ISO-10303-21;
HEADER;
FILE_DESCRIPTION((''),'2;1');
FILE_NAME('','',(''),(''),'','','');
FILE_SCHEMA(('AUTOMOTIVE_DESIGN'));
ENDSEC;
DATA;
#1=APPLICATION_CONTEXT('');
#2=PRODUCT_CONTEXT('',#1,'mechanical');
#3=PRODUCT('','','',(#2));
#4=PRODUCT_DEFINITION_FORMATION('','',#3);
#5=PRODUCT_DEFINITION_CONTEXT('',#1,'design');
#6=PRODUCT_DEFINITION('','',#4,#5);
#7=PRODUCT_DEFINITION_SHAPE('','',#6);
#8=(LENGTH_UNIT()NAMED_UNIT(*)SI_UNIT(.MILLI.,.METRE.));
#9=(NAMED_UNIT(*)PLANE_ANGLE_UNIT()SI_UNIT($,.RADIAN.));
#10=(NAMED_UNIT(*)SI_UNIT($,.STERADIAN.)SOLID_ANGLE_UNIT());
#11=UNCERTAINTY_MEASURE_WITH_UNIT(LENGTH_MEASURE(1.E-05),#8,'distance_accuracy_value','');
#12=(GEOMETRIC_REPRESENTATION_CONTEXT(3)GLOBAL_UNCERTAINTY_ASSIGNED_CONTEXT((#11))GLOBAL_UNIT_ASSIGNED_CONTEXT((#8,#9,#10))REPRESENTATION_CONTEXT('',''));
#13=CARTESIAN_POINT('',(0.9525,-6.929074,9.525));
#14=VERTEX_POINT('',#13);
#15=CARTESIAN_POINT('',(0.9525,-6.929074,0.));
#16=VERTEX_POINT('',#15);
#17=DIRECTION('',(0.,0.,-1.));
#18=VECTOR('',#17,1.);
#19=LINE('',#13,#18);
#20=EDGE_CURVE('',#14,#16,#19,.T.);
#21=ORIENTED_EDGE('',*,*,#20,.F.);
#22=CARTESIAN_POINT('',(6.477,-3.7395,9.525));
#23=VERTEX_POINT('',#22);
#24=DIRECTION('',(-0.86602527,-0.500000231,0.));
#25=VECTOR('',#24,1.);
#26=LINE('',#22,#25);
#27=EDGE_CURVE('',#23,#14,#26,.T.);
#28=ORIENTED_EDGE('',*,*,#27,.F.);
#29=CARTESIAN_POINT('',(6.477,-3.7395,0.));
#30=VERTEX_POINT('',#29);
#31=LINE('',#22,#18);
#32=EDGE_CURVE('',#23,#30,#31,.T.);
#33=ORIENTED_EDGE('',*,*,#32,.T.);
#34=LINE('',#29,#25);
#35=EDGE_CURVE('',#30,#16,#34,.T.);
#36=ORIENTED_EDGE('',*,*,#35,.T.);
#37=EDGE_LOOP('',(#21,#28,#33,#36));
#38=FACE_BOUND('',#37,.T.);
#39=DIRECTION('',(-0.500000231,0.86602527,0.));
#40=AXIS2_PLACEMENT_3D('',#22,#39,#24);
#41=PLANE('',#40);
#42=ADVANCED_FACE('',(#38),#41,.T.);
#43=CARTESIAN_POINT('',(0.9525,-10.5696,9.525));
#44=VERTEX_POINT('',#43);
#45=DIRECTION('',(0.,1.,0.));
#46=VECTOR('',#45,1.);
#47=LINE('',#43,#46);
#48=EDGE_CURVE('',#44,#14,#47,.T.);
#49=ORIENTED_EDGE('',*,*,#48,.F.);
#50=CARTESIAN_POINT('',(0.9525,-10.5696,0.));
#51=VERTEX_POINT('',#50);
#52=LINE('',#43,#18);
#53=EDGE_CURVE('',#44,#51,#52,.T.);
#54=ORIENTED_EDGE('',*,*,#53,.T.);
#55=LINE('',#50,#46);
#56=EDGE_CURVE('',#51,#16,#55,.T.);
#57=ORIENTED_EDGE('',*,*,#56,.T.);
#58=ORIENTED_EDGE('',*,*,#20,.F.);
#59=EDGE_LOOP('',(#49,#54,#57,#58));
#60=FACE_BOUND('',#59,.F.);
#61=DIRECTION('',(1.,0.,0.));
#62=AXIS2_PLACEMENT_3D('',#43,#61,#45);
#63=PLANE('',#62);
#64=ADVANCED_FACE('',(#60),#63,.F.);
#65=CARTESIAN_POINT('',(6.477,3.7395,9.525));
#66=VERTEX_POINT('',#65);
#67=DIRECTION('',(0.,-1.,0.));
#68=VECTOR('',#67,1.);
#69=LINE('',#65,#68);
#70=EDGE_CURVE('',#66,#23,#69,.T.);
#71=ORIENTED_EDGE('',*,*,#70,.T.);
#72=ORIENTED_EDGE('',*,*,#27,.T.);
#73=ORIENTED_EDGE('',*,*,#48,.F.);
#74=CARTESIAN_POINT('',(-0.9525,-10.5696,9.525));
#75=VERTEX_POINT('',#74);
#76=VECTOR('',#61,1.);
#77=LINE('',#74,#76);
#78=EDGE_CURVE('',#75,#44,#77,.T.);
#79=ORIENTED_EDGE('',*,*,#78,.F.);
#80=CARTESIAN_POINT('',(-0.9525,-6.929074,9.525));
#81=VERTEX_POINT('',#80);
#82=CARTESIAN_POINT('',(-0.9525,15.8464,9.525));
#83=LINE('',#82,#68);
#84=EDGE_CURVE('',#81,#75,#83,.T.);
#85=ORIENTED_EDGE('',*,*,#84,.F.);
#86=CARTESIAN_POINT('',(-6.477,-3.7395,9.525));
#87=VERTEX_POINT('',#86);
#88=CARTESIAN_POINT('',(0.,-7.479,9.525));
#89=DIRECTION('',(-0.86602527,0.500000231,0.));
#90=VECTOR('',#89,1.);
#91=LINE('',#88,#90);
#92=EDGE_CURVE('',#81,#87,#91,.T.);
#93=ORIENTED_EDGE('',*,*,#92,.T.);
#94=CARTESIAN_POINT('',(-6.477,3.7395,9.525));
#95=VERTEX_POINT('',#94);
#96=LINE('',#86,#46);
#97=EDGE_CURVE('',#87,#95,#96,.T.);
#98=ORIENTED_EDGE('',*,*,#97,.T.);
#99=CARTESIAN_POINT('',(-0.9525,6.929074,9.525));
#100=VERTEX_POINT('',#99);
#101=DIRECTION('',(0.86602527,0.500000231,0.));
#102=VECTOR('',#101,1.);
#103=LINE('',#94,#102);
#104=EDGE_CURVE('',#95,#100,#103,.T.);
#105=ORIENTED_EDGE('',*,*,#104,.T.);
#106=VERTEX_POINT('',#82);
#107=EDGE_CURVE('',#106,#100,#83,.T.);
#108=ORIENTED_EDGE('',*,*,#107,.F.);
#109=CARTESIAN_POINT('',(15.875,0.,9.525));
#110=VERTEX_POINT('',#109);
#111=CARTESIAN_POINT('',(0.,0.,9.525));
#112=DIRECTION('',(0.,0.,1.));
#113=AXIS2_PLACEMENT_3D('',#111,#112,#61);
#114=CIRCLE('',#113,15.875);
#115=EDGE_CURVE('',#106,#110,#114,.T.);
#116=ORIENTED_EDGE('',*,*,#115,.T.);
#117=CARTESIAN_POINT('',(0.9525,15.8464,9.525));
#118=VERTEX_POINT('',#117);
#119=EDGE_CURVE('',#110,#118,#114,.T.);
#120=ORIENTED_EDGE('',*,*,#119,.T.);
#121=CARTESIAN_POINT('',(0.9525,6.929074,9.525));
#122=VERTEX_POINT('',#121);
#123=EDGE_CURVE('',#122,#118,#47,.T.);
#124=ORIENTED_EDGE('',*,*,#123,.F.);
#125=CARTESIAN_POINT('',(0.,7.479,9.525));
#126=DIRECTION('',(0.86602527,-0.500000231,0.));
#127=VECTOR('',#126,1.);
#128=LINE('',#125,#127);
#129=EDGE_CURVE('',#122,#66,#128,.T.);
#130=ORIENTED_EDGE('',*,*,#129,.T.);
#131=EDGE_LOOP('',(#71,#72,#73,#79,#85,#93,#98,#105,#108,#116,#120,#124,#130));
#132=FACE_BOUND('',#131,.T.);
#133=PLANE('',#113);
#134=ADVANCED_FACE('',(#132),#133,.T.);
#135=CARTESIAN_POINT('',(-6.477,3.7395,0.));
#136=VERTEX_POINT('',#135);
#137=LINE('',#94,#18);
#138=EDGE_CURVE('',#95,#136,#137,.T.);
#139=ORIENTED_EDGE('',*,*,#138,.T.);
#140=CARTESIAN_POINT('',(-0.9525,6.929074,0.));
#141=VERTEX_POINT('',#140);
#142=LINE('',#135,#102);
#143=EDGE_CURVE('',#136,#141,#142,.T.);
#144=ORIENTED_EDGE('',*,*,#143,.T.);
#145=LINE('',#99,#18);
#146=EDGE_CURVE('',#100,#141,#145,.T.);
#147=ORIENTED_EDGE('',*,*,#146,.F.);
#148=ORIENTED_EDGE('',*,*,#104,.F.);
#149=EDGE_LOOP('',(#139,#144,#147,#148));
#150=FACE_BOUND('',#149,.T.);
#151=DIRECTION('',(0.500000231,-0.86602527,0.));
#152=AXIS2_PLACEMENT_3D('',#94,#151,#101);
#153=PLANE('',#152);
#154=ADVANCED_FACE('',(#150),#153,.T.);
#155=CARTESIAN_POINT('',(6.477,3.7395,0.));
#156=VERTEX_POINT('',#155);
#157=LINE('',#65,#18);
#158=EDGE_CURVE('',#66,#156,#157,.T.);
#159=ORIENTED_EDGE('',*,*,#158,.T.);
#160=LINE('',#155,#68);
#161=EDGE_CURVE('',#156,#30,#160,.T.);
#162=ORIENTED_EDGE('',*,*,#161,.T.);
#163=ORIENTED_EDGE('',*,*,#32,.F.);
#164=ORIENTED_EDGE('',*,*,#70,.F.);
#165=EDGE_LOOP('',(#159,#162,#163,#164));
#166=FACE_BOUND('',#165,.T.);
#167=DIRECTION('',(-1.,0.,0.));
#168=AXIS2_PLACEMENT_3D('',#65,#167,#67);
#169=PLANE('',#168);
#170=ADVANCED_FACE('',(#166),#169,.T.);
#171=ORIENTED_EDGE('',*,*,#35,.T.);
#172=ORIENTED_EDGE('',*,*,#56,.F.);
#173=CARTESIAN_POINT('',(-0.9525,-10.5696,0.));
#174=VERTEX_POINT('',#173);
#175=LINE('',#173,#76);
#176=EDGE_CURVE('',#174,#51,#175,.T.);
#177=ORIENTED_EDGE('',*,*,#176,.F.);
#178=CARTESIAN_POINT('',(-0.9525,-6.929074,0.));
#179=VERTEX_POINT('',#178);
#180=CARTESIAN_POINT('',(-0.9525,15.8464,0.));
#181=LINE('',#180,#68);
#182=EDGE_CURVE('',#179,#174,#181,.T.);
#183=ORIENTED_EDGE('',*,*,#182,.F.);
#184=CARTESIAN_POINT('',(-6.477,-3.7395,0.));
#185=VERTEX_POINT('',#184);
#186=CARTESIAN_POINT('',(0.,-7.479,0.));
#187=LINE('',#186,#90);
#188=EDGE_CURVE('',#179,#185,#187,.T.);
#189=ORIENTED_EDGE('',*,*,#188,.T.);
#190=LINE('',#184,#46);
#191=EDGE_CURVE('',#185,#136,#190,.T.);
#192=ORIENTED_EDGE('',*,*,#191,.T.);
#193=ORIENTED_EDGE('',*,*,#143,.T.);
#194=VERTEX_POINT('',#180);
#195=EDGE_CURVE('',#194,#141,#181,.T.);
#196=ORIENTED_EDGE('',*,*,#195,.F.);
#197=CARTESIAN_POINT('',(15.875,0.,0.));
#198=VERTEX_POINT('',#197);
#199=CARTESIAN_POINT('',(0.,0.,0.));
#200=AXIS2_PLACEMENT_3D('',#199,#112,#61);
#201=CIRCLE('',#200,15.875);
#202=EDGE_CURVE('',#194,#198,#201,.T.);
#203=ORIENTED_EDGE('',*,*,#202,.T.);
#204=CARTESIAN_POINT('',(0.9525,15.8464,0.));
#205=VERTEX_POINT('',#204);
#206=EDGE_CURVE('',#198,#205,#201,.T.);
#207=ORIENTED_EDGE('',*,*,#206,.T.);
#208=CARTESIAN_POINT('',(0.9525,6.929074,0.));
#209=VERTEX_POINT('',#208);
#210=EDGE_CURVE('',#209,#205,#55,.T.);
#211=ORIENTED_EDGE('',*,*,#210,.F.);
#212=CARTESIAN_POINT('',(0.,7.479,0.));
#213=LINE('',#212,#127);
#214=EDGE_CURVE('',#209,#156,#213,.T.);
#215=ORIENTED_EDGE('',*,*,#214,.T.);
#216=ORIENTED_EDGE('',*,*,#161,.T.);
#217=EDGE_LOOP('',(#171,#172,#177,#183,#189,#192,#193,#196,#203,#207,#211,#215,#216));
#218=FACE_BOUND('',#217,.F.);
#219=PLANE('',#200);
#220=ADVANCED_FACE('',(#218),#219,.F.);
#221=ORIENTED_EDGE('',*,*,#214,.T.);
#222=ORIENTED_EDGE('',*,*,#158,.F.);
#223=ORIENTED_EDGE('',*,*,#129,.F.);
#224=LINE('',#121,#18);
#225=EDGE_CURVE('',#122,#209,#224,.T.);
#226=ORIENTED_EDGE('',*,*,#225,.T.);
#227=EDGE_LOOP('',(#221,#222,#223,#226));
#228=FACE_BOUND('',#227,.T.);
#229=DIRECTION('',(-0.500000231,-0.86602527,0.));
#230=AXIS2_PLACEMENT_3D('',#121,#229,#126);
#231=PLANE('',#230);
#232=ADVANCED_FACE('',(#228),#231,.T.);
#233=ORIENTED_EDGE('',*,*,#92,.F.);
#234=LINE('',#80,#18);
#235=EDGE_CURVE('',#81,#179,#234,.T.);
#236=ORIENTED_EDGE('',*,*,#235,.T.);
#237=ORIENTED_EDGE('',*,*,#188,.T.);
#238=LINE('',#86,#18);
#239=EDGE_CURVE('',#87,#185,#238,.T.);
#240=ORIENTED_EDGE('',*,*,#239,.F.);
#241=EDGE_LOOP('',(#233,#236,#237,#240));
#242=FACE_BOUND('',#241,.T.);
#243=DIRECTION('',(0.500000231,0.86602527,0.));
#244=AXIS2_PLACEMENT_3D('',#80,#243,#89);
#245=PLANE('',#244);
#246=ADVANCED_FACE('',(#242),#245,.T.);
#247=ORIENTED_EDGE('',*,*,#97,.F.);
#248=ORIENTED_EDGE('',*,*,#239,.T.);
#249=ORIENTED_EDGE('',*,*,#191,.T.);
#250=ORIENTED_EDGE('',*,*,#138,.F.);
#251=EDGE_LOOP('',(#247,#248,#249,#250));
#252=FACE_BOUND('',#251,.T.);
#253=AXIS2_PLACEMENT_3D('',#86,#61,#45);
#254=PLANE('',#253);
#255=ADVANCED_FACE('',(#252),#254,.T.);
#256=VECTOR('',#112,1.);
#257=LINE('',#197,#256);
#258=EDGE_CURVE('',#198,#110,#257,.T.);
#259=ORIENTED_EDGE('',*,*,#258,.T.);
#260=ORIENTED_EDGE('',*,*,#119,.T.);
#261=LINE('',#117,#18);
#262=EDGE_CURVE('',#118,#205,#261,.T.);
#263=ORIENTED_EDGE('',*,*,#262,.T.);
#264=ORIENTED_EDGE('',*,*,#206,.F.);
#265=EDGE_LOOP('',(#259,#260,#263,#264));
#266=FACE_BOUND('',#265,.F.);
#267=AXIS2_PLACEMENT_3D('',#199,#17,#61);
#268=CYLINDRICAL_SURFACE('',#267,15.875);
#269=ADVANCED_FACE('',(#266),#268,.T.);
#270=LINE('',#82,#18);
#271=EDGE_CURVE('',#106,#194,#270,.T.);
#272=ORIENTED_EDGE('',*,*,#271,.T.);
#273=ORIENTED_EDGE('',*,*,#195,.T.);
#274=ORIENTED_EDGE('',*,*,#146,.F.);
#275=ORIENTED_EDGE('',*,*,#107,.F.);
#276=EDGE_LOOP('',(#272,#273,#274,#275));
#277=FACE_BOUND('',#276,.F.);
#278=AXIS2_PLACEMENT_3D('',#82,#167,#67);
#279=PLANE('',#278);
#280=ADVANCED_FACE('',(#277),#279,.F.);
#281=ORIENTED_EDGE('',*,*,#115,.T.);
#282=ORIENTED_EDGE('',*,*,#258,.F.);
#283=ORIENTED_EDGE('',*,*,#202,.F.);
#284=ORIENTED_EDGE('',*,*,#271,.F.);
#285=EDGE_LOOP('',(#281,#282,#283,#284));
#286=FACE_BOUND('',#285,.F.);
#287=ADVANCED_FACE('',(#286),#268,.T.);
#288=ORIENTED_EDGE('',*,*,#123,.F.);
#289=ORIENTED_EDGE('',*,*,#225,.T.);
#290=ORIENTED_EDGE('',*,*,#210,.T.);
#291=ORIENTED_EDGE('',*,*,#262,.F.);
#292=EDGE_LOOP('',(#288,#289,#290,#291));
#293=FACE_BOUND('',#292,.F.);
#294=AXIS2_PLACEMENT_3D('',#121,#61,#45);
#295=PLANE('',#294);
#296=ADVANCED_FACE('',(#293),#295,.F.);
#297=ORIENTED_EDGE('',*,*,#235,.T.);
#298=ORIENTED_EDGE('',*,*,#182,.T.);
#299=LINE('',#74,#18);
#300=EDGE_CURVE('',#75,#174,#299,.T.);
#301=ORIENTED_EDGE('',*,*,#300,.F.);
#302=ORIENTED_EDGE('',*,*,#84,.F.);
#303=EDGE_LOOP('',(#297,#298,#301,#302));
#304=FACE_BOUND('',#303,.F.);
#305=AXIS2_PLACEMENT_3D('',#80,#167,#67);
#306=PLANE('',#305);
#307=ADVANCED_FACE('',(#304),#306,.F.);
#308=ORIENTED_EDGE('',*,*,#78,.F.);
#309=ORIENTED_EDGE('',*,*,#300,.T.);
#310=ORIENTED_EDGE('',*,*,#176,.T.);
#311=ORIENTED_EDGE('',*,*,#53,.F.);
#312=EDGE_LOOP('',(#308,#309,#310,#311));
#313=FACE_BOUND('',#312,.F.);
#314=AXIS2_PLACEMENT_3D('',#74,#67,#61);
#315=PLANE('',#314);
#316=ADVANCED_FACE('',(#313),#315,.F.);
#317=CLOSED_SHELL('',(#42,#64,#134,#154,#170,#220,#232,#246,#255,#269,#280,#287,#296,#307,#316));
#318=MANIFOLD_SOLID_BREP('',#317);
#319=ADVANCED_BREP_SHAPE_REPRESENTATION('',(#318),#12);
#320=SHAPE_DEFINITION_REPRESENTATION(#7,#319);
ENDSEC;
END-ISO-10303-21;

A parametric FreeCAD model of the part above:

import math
import FreeCAD as App
import Part
import Sketcher
Q = App.Units.Quantity

doc = App.newDocument("Part")
body = doc.addObject("PartDesign::Body", "Body")

# Sketch on XY plane
sketch1 = body.newObject("Sketcher::SketchObject", "Sketch")
sketch1.AttachmentSupport = (doc.getObject("XY_Plane"), [""])
sketch1.MapMode = "FlatFace"
sketch1.addGeometry(Part.Circle(App.Vector(0, 0, 0), App.Vector(0, 0, 1), 15.875), False)
sketch1.addConstraint([
    Sketcher.Constraint("Coincident", 0, 3, -1, 1),
    Sketcher.Constraint("Diameter", 0, Q("1.25 in")),
])
pad1 = body.newObject("PartDesign::Pad", "Pad")
pad1.Profile = sketch1
pad1.Length = Q("0.375 in")

# Sketch on XY plane
sketch2 = body.newObject("Sketcher::SketchObject", "Sketch001")
sketch2.AttachmentSupport = (doc.getObject("XY_Plane"), [""])
sketch2.MapMode = "FlatFace"
sketch2.AttachmentOffset = App.Placement(App.Vector(0, 0, 0.375 * 25.4), App.Rotation())
sketch2.addGeometry([
    Part.LineSegment(App.Vector(-6.477, 3.7395, 0), App.Vector(-6.477, -3.7395, 0)),  # 0
    Part.LineSegment(App.Vector(-6.477, -3.7395, 0), App.Vector(-0.9525, -6.929074, 0)),  # 1
    Part.LineSegment(App.Vector(-0.9525, -6.929074, 0), App.Vector(-0.9525, -10.5696, 0)),  # 2
    Part.LineSegment(App.Vector(-0.9525, -10.5696, 0), App.Vector(0.9525, -10.5696, 0)),  # 3
    Part.LineSegment(App.Vector(0.9525, -10.5696, 0), App.Vector(0.9525, -6.929074, 0)),  # 4
    Part.LineSegment(App.Vector(0.9525, -6.929074, 0), App.Vector(6.477, -3.7395, 0)),  # 5
    Part.LineSegment(App.Vector(6.477, -3.7395, 0), App.Vector(6.477, 3.7395, 0)),  # 6
    Part.LineSegment(App.Vector(6.477, 3.7395, 0), App.Vector(0.9525, 6.929074, 0)),  # 7
    Part.LineSegment(App.Vector(0.9525, 6.929074, 0), App.Vector(0.9525, 15.8464, 0)),  # 8
    Part.ArcOfCircle(Part.Circle(App.Vector(0, 0, 0), App.Vector(0, 0, 1), 15.875), math.radians(86.560187), math.radians(93.439813)),  # 9
    Part.LineSegment(App.Vector(-0.9525, 15.8464, 0), App.Vector(-0.9525, 6.929074, 0)),  # 10
    Part.LineSegment(App.Vector(-0.9525, 6.929074, 0), App.Vector(-6.477, 3.7395, 0)),  # 11
], False)
sketch2.addConstraint([
    Sketcher.Constraint("Coincident", 0, 2, 1, 1),
    Sketcher.Constraint("Coincident", 1, 2, 2, 1),
    Sketcher.Constraint("Coincident", 2, 2, 3, 1),
    Sketcher.Constraint("Coincident", 3, 2, 4, 1),
    Sketcher.Constraint("Coincident", 4, 2, 5, 1),
    Sketcher.Constraint("Coincident", 5, 2, 6, 1),
    Sketcher.Constraint("Coincident", 6, 2, 7, 1),
    Sketcher.Constraint("Coincident", 7, 2, 8, 1),
    Sketcher.Constraint("Coincident", 8, 2, 9, 1),
    Sketcher.Constraint("Coincident", 9, 2, 10, 1),
    Sketcher.Constraint("Coincident", 10, 2, 11, 1),
    Sketcher.Constraint("Coincident", 11, 2, 0, 1),
    Sketcher.Constraint("Vertical", 0),
    Sketcher.Constraint("Vertical", 2),
    Sketcher.Constraint("Horizontal", 3),
    Sketcher.Constraint("Vertical", 4),
    Sketcher.Constraint("Vertical", 6),
    Sketcher.Constraint("Vertical", 8),
    Sketcher.Constraint("Vertical", 10),
    Sketcher.Constraint("Coincident", 9, 3, -1, 1),
    Sketcher.Constraint("Symmetric", 0, 2, 6, 2, -1, 1),
    Sketcher.Constraint("Symmetric", 1, 2, 7, 2, -1, 1),
    Sketcher.Constraint("Symmetric", 4, 2, 10, 2, -1, 1),
    Sketcher.Constraint("Symmetric", 1, 2, 4, 2, -2),
    Sketcher.Constraint("Parallel", 5, 11),
    Sketcher.Constraint("Horizontal", 0, 2, 5, 2),
    Sketcher.Constraint("DistanceX", 3, 1, 3, 2, Q("0.075 in")),
    Sketcher.Constraint("DistanceX", 0, 2, 6, 2, Q("0.51 in")),
    Sketcher.Constraint("Angle", 1, Q("-30 deg")),
    Sketcher.Constraint("Radius", 9, Q("0.625 in")),
    Sketcher.Constraint("DistanceY", 0, 2, 0, 1, Q("7.479 mm")),
    Sketcher.Constraint("DistanceY", 2, 2, 2, 1, Q("3.6405 mm")),
])
pocket1 = body.newObject("PartDesign::Pocket", "Pocket")
pocket1.Profile = sketch2
pocket1.Length = Q("0.375 in")

doc.recompute()
